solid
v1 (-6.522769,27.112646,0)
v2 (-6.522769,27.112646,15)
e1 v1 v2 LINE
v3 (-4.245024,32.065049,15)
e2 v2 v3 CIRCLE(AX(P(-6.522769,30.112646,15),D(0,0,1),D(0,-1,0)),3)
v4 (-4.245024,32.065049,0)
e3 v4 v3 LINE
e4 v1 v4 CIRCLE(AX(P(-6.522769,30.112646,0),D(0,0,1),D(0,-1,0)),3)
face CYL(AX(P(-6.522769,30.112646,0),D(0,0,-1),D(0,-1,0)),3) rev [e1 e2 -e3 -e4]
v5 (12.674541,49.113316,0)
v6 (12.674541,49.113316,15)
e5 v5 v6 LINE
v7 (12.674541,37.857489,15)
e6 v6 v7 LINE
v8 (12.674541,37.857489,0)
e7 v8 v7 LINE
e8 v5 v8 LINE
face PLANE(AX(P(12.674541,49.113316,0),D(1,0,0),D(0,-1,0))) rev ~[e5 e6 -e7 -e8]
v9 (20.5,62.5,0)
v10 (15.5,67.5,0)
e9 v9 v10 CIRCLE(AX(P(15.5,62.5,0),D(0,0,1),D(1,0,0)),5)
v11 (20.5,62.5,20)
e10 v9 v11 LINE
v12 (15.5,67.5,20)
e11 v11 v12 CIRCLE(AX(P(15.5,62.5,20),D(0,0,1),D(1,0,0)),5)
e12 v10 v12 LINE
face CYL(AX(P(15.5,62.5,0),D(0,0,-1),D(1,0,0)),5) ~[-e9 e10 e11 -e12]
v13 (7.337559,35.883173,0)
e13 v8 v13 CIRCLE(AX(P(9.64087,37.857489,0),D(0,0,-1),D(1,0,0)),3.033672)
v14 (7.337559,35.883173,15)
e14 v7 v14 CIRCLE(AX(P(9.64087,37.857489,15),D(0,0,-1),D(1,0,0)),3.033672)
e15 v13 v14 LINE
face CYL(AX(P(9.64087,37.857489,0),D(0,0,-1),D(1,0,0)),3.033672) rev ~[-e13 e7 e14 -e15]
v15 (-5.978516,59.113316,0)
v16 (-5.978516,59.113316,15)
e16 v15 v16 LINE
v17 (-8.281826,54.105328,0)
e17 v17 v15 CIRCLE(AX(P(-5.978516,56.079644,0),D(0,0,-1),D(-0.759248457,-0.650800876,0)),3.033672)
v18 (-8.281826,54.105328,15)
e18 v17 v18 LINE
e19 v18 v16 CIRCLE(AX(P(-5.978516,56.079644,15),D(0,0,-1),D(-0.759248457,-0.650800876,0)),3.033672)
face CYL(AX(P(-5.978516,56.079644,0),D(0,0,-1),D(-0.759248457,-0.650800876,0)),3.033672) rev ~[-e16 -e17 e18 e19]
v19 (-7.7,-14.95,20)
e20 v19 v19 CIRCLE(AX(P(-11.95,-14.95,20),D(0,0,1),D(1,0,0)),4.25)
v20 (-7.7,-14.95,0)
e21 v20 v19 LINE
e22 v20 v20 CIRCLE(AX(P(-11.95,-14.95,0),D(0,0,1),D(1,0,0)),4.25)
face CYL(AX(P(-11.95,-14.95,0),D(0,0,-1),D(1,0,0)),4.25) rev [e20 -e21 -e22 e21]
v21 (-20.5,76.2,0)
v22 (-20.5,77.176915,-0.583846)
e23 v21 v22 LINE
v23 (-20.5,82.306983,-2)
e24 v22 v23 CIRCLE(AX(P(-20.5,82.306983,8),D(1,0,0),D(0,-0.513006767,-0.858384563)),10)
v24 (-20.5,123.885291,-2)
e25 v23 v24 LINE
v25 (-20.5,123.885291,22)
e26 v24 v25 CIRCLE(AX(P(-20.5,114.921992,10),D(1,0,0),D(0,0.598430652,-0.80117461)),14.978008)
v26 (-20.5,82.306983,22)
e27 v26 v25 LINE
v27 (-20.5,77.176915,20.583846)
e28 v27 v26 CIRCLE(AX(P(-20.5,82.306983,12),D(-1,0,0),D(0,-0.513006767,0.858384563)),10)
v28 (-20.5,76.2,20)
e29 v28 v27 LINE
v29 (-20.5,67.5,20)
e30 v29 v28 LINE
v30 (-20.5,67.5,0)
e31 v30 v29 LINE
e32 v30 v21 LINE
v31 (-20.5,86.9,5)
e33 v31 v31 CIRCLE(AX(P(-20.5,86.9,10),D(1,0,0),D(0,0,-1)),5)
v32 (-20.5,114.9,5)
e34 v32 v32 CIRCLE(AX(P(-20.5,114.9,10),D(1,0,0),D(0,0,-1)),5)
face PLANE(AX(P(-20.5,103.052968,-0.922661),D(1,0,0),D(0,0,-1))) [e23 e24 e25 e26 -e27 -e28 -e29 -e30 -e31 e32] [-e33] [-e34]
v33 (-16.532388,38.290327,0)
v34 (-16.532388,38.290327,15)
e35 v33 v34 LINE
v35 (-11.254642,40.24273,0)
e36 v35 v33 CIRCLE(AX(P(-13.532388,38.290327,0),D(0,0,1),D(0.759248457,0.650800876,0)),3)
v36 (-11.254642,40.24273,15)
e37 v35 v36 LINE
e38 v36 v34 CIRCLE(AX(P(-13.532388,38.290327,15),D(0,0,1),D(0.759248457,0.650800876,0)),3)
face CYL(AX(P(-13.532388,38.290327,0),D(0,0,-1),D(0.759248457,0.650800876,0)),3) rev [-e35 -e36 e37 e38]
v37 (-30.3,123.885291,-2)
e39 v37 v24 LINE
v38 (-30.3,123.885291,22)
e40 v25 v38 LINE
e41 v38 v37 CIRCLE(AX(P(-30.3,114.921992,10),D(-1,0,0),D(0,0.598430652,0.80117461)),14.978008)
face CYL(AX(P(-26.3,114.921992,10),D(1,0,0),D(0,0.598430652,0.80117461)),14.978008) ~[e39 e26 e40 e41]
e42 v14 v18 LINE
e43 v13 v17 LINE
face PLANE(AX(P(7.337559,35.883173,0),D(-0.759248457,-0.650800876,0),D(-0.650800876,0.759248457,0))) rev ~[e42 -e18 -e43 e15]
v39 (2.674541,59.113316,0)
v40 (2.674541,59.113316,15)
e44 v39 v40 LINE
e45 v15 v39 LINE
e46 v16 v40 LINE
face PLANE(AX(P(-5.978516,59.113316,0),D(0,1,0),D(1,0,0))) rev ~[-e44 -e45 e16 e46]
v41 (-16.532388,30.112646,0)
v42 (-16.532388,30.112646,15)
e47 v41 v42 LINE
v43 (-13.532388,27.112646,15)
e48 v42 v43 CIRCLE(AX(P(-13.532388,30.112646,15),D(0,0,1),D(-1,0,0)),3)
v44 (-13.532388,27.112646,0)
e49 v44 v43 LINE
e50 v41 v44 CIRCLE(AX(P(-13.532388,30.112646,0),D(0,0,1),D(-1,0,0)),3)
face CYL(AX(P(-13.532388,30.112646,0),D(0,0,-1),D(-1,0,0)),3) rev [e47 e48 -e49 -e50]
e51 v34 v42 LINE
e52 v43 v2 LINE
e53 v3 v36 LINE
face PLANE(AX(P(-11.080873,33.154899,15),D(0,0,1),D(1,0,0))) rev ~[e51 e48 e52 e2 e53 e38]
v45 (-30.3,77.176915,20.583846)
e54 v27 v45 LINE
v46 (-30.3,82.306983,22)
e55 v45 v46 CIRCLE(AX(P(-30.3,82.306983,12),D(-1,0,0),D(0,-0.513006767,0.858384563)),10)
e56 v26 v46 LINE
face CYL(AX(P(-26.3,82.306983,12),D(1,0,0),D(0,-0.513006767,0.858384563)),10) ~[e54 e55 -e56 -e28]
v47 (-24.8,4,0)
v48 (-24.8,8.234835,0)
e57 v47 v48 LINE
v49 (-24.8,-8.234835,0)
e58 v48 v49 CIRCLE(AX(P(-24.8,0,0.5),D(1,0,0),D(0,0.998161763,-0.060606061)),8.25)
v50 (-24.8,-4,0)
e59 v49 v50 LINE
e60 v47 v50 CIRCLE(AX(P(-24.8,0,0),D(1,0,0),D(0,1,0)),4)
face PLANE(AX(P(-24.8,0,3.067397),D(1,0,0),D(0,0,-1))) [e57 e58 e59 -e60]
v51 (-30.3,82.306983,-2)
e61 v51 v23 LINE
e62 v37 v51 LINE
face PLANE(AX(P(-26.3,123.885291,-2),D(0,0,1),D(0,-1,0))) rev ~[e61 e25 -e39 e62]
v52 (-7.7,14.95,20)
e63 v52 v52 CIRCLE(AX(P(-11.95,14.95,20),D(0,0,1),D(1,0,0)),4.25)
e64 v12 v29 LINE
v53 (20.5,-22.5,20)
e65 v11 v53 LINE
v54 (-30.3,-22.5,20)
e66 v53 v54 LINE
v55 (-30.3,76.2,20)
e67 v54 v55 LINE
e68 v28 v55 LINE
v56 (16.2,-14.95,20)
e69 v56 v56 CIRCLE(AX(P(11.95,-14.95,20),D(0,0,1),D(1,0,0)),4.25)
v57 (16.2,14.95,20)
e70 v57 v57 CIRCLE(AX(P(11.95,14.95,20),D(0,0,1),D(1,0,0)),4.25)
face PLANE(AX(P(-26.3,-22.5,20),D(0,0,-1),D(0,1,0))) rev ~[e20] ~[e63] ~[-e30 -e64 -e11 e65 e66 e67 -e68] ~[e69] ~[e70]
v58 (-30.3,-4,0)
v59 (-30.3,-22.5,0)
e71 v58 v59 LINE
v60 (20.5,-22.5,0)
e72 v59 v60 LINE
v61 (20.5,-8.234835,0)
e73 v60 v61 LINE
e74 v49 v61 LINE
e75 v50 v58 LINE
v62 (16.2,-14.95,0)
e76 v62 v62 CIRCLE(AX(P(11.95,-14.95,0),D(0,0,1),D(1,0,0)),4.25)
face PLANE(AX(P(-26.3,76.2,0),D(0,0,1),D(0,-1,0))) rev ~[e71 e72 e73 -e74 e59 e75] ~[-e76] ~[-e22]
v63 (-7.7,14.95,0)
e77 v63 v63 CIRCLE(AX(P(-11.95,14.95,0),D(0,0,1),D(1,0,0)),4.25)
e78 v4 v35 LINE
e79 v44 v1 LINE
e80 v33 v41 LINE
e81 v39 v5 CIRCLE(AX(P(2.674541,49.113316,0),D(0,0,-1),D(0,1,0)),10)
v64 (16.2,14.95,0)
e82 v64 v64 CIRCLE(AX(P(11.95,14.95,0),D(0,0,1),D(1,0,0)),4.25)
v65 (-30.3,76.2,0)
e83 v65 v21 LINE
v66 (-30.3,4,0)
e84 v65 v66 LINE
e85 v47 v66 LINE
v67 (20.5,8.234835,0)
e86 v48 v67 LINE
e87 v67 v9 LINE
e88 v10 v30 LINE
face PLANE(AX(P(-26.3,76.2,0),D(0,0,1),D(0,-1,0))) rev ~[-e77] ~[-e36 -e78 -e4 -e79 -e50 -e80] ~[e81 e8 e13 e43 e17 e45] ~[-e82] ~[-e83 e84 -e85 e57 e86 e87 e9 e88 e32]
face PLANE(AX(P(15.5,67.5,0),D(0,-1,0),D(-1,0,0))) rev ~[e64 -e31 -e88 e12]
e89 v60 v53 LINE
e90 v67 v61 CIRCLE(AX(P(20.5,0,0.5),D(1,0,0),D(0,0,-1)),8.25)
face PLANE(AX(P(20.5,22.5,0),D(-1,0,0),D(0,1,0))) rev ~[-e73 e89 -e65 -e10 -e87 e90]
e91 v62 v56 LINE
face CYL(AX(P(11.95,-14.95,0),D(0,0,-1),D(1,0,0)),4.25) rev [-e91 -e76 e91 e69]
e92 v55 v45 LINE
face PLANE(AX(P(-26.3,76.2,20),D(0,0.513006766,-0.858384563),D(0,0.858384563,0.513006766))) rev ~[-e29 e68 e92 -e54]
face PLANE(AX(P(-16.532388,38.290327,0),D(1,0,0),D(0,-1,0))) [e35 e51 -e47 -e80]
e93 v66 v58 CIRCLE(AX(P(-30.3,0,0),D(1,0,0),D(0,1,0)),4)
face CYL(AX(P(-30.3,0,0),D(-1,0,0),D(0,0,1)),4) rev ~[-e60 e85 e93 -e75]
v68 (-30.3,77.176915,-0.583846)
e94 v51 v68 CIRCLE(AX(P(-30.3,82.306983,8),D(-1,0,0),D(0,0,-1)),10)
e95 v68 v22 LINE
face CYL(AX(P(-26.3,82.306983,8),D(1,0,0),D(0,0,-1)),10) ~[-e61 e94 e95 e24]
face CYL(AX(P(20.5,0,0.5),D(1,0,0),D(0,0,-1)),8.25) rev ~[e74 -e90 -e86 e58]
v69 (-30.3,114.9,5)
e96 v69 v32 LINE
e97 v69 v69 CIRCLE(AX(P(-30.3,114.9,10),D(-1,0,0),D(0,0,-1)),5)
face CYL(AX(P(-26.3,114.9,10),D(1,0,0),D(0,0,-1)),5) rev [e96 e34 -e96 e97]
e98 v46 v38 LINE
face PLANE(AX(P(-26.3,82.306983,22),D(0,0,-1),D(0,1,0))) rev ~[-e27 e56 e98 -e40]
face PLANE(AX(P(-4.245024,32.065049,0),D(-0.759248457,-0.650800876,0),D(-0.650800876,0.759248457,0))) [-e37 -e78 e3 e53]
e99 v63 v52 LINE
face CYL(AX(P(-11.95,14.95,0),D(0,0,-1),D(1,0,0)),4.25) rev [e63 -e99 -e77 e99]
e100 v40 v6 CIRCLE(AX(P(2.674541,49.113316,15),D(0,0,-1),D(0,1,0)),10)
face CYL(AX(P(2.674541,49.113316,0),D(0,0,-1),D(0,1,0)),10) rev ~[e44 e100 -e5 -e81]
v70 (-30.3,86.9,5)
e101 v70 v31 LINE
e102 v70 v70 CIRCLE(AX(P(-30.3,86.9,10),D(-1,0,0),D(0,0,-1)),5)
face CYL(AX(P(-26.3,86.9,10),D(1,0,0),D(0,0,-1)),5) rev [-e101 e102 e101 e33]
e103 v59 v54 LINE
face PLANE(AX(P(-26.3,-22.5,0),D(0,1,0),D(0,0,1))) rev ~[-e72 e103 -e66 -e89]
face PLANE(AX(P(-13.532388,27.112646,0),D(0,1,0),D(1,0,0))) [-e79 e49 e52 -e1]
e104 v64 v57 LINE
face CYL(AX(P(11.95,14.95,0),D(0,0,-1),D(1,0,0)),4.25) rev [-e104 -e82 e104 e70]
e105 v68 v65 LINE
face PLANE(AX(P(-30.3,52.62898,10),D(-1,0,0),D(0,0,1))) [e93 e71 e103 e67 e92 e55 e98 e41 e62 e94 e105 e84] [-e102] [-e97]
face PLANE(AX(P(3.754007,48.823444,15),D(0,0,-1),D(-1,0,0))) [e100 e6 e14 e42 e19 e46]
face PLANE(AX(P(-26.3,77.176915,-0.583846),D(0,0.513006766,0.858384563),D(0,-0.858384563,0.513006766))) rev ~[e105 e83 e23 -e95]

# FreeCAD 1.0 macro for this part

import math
import FreeCAD as App
import Part
import Sketcher

V = App.Vector

doc = App.newDocument("Part")
params = doc.addObject("Spreadsheet::Sheet", "Params")
for row, (alias, value) in enumerate([
    ("sketch1_diameter", "8.5 mm"),
    ("sketch1_width", "41 mm"),
    ("sketch1_height", "45 mm"),
    ("pad1_length", "20 mm"),
    ("sketch2_width", "9.8 mm"),
    ("sketch2_height", "152.4 mm"),
    ("pad2_length", "20 mm"),
    ("sketch3_diameter", "10 mm"),
    ("sketch3_radius", "10 mm"),
    ("sketch3_width", "53.7 mm"),
    ("pad3_length", "9.8 mm"),
    ("sketch4_diameter", "10 mm"),
    ("pocket1_length", "15 mm"),
    ("sketch5_diameter", "16.5 mm"),
    ("pocket2_length", "65 mm"),
    ("sketch6_radius", "5 mm"),
    ("sketch6_width", "41 mm"),
    ("sketch6_height", "40 mm"),
    ("pad4_length", "20 mm"),
    ("sketch7_width", "4 mm"),
    ("sketch8_radius", "8.25 mm"),
    ("pad5_length", "1.5 mm"),
    ("pocket4_length", "13.5 mm"),
    ("sketch10_diameter", "10 mm"),
    ("sketch10_radius", "10 mm"),
    ("sketch10_height", "20 mm"),
    ("sketch10_width", "98.7 mm"),
    ("pad6_length", "4 mm"),
    ("sketch11_diameter", "8 mm"),
    ("pocket5_length", "10 mm"),
    ("sketch12_radius", "10 mm"),
    ("sketch12_radius2", "3 mm"),
    ("pocket6_length", "15 mm"),
], start=1):
    params.set(f"A{row}", alias)
    params.set(f"B{row}", "=" + value)
    params.setAlias(f"B{row}", alias)

body = doc.addObject("PartDesign::Body", "Body")

# Sketch on XY plane
sketch1 = body.newObject("Sketcher::SketchObject", "Sketch")
sketch1.AttachmentSupport = (doc.getObject("XY_Plane"), [""])
sketch1.MapMode = "FlatFace"
sketch1.addGeometry([
    Part.LineSegment(V(-20.5, 22.5, 0), V(-20.5, -22.5, 0)),  # 0
    Part.LineSegment(V(-20.5, -22.5, 0), V(20.5, -22.5, 0)),  # 1
    Part.LineSegment(V(20.5, -22.5, 0), V(20.5, 22.5, 0)),  # 2
    Part.LineSegment(V(20.5, 22.5, 0), V(-20.5, 22.5, 0)),  # 3
    Part.Circle(V(-11.9, -14.9, 0), V(0, 0, 1), 4.2),  # 4
    Part.Circle(V(11.9, -14.9, 0), V(0, 0, 1), 4.2),  # 5
    Part.Circle(V(-11.9, 14.9, 0), V(0, 0, 1), 4.2),  # 6
    Part.Circle(V(11.9, 14.9, 0), V(0, 0, 1), 4.2),  # 7
], False)
sketch1.addConstraint([
    Sketcher.Constraint("Coincident", 0, 2, 1, 1),
    Sketcher.Constraint("Coincident", 1, 2, 2, 1),
    Sketcher.Constraint("Coincident", 2, 2, 3, 1),
    Sketcher.Constraint("Coincident", 3, 2, 0, 1),
    Sketcher.Constraint("Vertical", 0),
    Sketcher.Constraint("Horizontal", 1),
    Sketcher.Constraint("Vertical", 2),
    Sketcher.Constraint("Horizontal", 3),
    Sketcher.Constraint("Equal", 4, 5),
    Sketcher.Constraint("Equal", 5, 6),
    Sketcher.Constraint("Equal", 6, 7),
    Sketcher.Constraint("Symmetric", 5, 3, 6, 3, -1, 1),
    Sketcher.Constraint("Symmetric", 4, 3, 7, 3, -1, 1),
    Sketcher.Constraint("Symmetric", 0, 2, 2, 2, -1, 1),
    Sketcher.Constraint("Symmetric", 4, 3, 5, 3, -2),
    Sketcher.Constraint("Diameter", 4, 8.5),
    Sketcher.Constraint("DistanceX", 1, 1, 1, 2, 41.0),
    Sketcher.Constraint("DistanceY", 0, 2, 0, 1, 45.0),
    Sketcher.Constraint("DistanceX", 4, 3, 5, 3, 23.9),
    Sketcher.Constraint("DistanceY", 4, 3, 6, 3, 29.9),
])
sketch1.setExpression("Constraints[15]", "Params.sketch1_diameter")
sketch1.setExpression("Constraints[16]", "Params.sketch1_width")
sketch1.setExpression("Constraints[17]", "Params.sketch1_height")
pad1 = body.newObject("PartDesign::Pad", "Pad")
pad1.Profile = sketch1
pad1.setExpression("Length", "Params.pad1_length")

# Sketch on XY plane
sketch2 = body.newObject("Sketcher::SketchObject", "Sketch001")
sketch2.AttachmentSupport = (doc.getObject("XY_Plane"), [""])
sketch2.MapMode = "FlatFace"
sketch2.addGeometry([
    Part.LineSegment(V(-20, 130, 0), V(-20, -22, 0)),
    Part.LineSegment(V(-20, -22, 0), V(-30, -22, 0)),
    Part.LineSegment(V(-30, -22, 0), V(-30, 130, 0)),
    Part.LineSegment(V(-30, 130, 0), V(-20, 130, 0)),
], False)
sketch2.addConstraint([
    Sketcher.Constraint("Coincident", 0, 2, 1, 1),
    Sketcher.Constraint("Coincident", 1, 2, 2, 1),
    Sketcher.Constraint("Coincident", 2, 2, 3, 1),
    Sketcher.Constraint("Coincident", 3, 2, 0, 1),
    Sketcher.Constraint("Vertical", 0),
    Sketcher.Constraint("Horizontal", 1),
    Sketcher.Constraint("Vertical", 2),
    Sketcher.Constraint("Horizontal", 3),
    Sketcher.Constraint("DistanceX", 1, 2, 1, 1, 9.8),
    Sketcher.Constraint("DistanceY", 0, 2, 0, 1, 152.4),
    Sketcher.Constraint("DistanceX", 0, 2, -1, 1, 20.5),
    Sketcher.Constraint("DistanceY", 0, 2, -1, 1, 22.5),
])
sketch2.setExpression("Constraints[8]", "Params.sketch2_width")
sketch2.setExpression("Constraints[9]", "Params.sketch2_height")
pad2 = body.newObject("PartDesign::Pad", "Pad001")
pad2.Profile = sketch2
pad2.setExpression("Length", "Params.pad2_length")

# Sketch on YZ plane
sketch3 = body.newObject("Sketcher::SketchObject", "Sketch002")
sketch3.AttachmentSupport = (doc.getObject("YZ_Plane"), [""])
sketch3.MapMode = "FlatFace"
sketch3.AttachmentOffset = App.Placement(V(0, 0, -20.5), App.Rotation())
sketch3.addGeometry([
    Part.Circle(V(114.9, 10, 0), V(0, 0, 1), 5),  # 0
    Part.Circle(V(86.9, 10, 0), V(0, 0, 1), 5),  # 1
    Part.LineSegment(V(76.2, 0, 0), V(77.18, -0.58, 0)),  # 2
    Part.ArcOfCircle(Part.Circle(V(82.31, 8, 0), V(0, 0, 1), 10), math.radians(-121), math.radians(-90)),  # 3
    Part.LineSegment(V(82.31, -2, 0), V(123.89, -2, 0)),  # 4
    Part.ArcOfCircle(Part.Circle(V(123.89, 8, 0), V(0, 0, 1), 10), math.radians(-90), math.radians(-55)),  # 5
    Part.LineSegment(V(129.55, -0.24, 0), V(129.9, 0, 0)),  # 6
    Part.LineSegment(V(129.9, 0, 0), V(76.2, 0, 0)),  # 7
    Part.LineSegment(V(77.18, 20.58, 0), V(76.2, 20, 0)),  # 8
    Part.LineSegment(V(76.2, 20, 0), V(129.9, 20, 0)),  # 9
    Part.LineSegment(V(129.9, 20, 0), V(129.55, 20.24, 0)),  # 10
    Part.ArcOfCircle(Part.Circle(V(123.89, 12, 0), V(0, 0, 1), 10), math.radians(55), math.radians(90)),  # 11
    Part.LineSegment(V(123.89, 22, 0), V(82.31, 22, 0)),  # 12
    Part.ArcOfCircle(Part.Circle(V(82.31, 12, 0), V(0, 0, 1), 10), math.radians(90), math.radians(121)),  # 13
], False)
sketch3.addConstraint([
    Sketcher.Constraint("Tangent", 2, 2, 3, 1),
    Sketcher.Constraint("Tangent", 3, 2, 4, 1),
    Sketcher.Constraint("Tangent", 4, 2, 5, 1),
    Sketcher.Constraint("Tangent", 5, 2, 6, 1),
    Sketcher.Constraint("Coincident", 6, 2, 7, 1),
    Sketcher.Constraint("Coincident", 7, 2, 2, 1),
    Sketcher.Constraint("Coincident", 8, 2, 9, 1),
    Sketcher.Constraint("Coincident", 9, 2, 10, 1),
    Sketcher.Constraint("Tangent", 10, 2, 11, 1),
    Sketcher.Constraint("Tangent", 11, 2, 12, 1),
    Sketcher.Constraint("Tangent", 12, 2, 13, 1),
    Sketcher.Constraint("Tangent", 13, 2, 8, 1),
    Sketcher.Constraint("Horizontal", 4),
    Sketcher.Constraint("Horizontal", 7),
    Sketcher.Constraint("Horizontal", 9),
    Sketcher.Constraint("Horizontal", 12),
    Sketcher.Constraint("Equal", 0, 1),
    Sketcher.Constraint("Equal", 3, 5),
    Sketcher.Constraint("Equal", 5, 11),
    Sketcher.Constraint("Equal", 11, 13),
    Sketcher.Constraint("PointOnObject", 6, 2, -1),
    Sketcher.Constraint("Horizontal", 0, 3, 1, 3),
    Sketcher.Constraint("Vertical", 5, 3, 11, 3),
    Sketcher.Constraint("Vertical", 3, 3, 13, 3),
    Sketcher.Constraint("Vertical", 7, 2, 8, 2),
    Sketcher.Constraint("Vertical", 6, 2, 9, 2),
    Sketcher.Constraint("Vertical", 5, 2, 10, 2),
    Sketcher.Constraint("Diameter", 0, 10.0),
    Sketcher.Constraint("Radius", 3, 10.0),
    Sketcher.Constraint("DistanceX", 7, 2, 7, 1, 53.7),
    Sketcher.Constraint("DistanceY", -1, 1, 0, 3, 10.0),
    Sketcher.Constraint("DistanceY", -1, 1, 3, 3, 8.0),
    Sketcher.Constraint("DistanceY", -1, 1, 11, 3, 12.0),
    Sketcher.Constraint("DistanceX", 1, 3, 0, 3, 28.0),
    Sketcher.Constraint("DistanceX", 0, 3, 6, 2, 15.0),
    Sketcher.Constraint("DistanceX", -1, 1, 0, 3, 114.9),
    Sketcher.Constraint("DistanceX", 4, 1, 4, 2, 41.578308),
    Sketcher.Constraint("DistanceX", -1, 1, 5, 3, 123.885291),
])
sketch3.setExpression("Constraints[27]", "Params.sketch3_diameter")
sketch3.setExpression("Constraints[28]", "Params.sketch3_radius")
sketch3.setExpression("Constraints[29]", "Params.sketch3_width")
pad3 = body.newObject("PartDesign::Pad", "Pad002")
pad3.Profile = sketch3
pad3.setExpression("Length", "Params.pad3_length")
pad3.Reversed = True

# Sketch on YZ plane
sketch4 = body.newObject("Sketcher::SketchObject", "Sketch003")
sketch4.AttachmentSupport = (doc.getObject("YZ_Plane"), [""])
sketch4.MapMode = "FlatFace"
sketch4.AttachmentOffset = App.Placement(V(0, 0, -20.5), App.Rotation())
sketch4.addGeometry([
    Part.Circle(V(87, 10, 0), V(0, 0, 1), 5),
    Part.Circle(V(115, 10, 0), V(0, 0, 1), 5),
], False)
sketch4.addConstraint([
    Sketcher.Constraint("Equal", 0, 1),
    Sketcher.Constraint("Horizontal", 0, 3, 1, 3),
    Sketcher.Constraint("Diameter", 0, 10.0),
    Sketcher.Constraint("DistanceY", -1, 1, 0, 3, 10.0),
    Sketcher.Constraint("DistanceX", 0, 3, 1, 3, 28.0),
    Sketcher.Constraint("DistanceX", -1, 1, 0, 3, 86.9),
])
sketch4.setExpression("Constraints[2]", "Params.sketch4_diameter")
pocket1 = body.newObject("PartDesign::Pocket", "Pocket")
pocket1.Profile = sketch4
pocket1.setExpression("Length", "Params.pocket1_length")

# Sketch on YZ plane
sketch5 = body.newObject("Sketcher::SketchObject", "Sketch004")
sketch5.AttachmentSupport = (doc.getObject("YZ_Plane"), [""])
sketch5.MapMode = "FlatFace"
sketch5.AttachmentOffset = App.Placement(V(0, 0, 20.5), App.Rotation())
sketch5.addGeometry(Part.Circle(V(0, 0, 0), V(0, 0, 1), 8), False)
sketch5.addConstraint([
    Sketcher.Constraint("PointOnObject", 0, 3, -2),
    Sketcher.Constraint("Diameter", 0, 16.5),
    Sketcher.Constraint("DistanceY", -1, 1, 0, 3, 0.5),
])
sketch5.setExpression("Constraints[1]", "Params.sketch5_diameter")
pocket2 = body.newObject("PartDesign::Pocket", "Pocket001")
pocket2.Profile = sketch5
pocket2.setExpression("Length", "Params.pocket2_length")

# Sketch on XY plane
sketch6 = body.newObject("Sketcher::SketchObject", "Sketch005")
sketch6.AttachmentSupport = (doc.getObject("XY_Plane"), [""])
sketch6.MapMode = "FlatFace"
sketch6.addGeometry([
    Part.LineSegment(V(20, 62, 0), V(20, 22, 0)),  # 0
    Part.LineSegment(V(20, 22, 0), V(-20, 22, 0)),  # 1
    Part.LineSegment(V(-20, 22, 0), V(-20, 68, 0)),  # 2
    Part.LineSegment(V(-20, 68, 0), V(16, 68, 0)),  # 3
    Part.ArcOfCircle(Part.Circle(V(16, 62, 0), V(0, 0, 1), 5), math.radians(0), math.radians(90)),  # 4
], False)
sketch6.addConstraint([
    Sketcher.Constraint("Coincident", 0, 2, 1, 1),
    Sketcher.Constraint("Coincident", 1, 2, 2, 1),
    Sketcher.Constraint("Coincident", 2, 2, 3, 1),
    Sketcher.Constraint("Tangent", 3, 2, 4, 2),
    Sketcher.Constraint("Tangent", 4, 1, 0, 1),
    Sketcher.Constraint("Vertical", 0),
    Sketcher.Constraint("Horizontal", 1),
    Sketcher.Constraint("Vertical", 2),
    Sketcher.Constraint("Horizontal", 3),
    Sketcher.Constraint("Radius", 4, 5.0),
    Sketcher.Constraint("DistanceX", 1, 2, 1, 1, 41.0),
    Sketcher.Constraint("DistanceY", 0, 2, 0, 1, 40.0),
    Sketcher.Constraint("DistanceX", -1, 1, 4, 3, 15.5),
    Sketcher.Constraint("DistanceY", -1, 1, 4, 3, 62.5),
])
sketch6.setExpression("Constraints[9]", "Params.sketch6_radius")
sketch6.setExpression("Constraints[10]", "Params.sketch6_width")
sketch6.setExpression("Constraints[11]", "Params.sketch6_height")
pad4 = body.newObject("PartDesign::Pad", "Pad003")
pad4.Profile = sketch6
pad4.setExpression("Length", "Params.pad4_length")

# Sketch on XY plane
sketch7 = body.newObject("Sketcher::SketchObject", "Sketch006")
sketch7.AttachmentSupport = (doc.getObject("XY_Plane"), [""])
sketch7.MapMode = "FlatFace"
sketch7.addGeometry([
    Part.LineSegment(V(-30.3, -22.5, 0), V(-26.3, -22.5, 0)),  # 0
    Part.LineSegment(V(-26.3, -22.5, 0), V(-26.3, 157.6, 0)),  # 1
    Part.LineSegment(V(-26.3, 157.6, 0), V(-61.1, 162.5, 0)),  # 2
    Part.LineSegment(V(-61.1, 162.5, 0), V(-64.5, 37.6, 0)),  # 3
    Part.LineSegment(V(-64.5, 37.6, 0), V(-30.3, -22.5, 0)),  # 4
], False)
sketch7.addConstraint([
    Sketcher.Constraint("Coincident", 0, 2, 1, 1),
    Sketcher.Constraint("Coincident", 1, 2, 2, 1),
    Sketcher.Constraint("Coincident", 2, 2, 3, 1),
    Sketcher.Constraint("Coincident", 3, 2, 4, 1),
    Sketcher.Constraint("Coincident", 4, 2, 0, 1),
    Sketcher.Constraint("Horizontal", 0),
    Sketcher.Constraint("Vertical", 1),
    Sketcher.Constraint("DistanceX", 0, 1, 0, 2, 4.0),
    Sketcher.Constraint("DistanceX", 0, 2, -1, 1, 26.3),
    Sketcher.Constraint("DistanceY", 0, 2, -1, 1, 22.5),
    Sketcher.Constraint("Distance", 2, 35.123442),
    Sketcher.Constraint("Distance", 3, 124.986292),
    Sketcher.Constraint("Distance", 4, 69.14744),
    Sketcher.Constraint("DistanceY", 1, 1, 1, 2, 180.093856),
    Sketcher.Constraint("DistanceX", 2, 2, -1, 1, 61.075791),
])
sketch7.setExpression("Constraints[7]", "Params.sketch7_width")
pocket3 = body.newObject("PartDesign::Pocket", "Pocket002")
pocket3.Profile = sketch7
pocket3.Type = "ThroughAll"
pocket3.Midplane = True

# Sketch on YZ plane
sketch8 = body.newObject("Sketcher::SketchObject", "Sketch007")
sketch8.AttachmentSupport = (doc.getObject("YZ_Plane"), [""])
sketch8.MapMode = "FlatFace"
sketch8.AttachmentOffset = App.Placement(V(0, 0, -24.8), App.Rotation())
sketch8.addGeometry([
    Part.LineSegment(V(8, 0, 0), V(-8, 0, 0)),
    Part.ArcOfCircle(Part.Circle(V(0, 0, 0), V(0, 0, 1), 8), math.radians(-3), math.radians(183)),
], False)
sketch8.addConstraint([
    Sketcher.Constraint("Coincident", 0, 1, 1, 1),
    Sketcher.Constraint("Coincident", 1, 2, 0, 2),
    Sketcher.Constraint("Horizontal", 0),
    Sketcher.Constraint("Symmetric", 0, 1, 1, 2, -1, 1),
    Sketcher.Constraint("Radius", 1, 8.25),
    Sketcher.Constraint("DistanceY", -1, 1, 1, 3, 0.5),
])
sketch8.setExpression("Constraints[4]", "Params.sketch8_radius")
pad5 = body.newObject("PartDesign::Pad", "Pad004")
pad5.Profile = sketch8
pad5.setExpression("Length", "Params.pad5_length")
pad5.Reversed = True

# Sketch on YZ plane
sketch9 = body.newObject("Sketcher::SketchObject", "Sketch008")
sketch9.AttachmentSupport = (doc.getObject("YZ_Plane"), [""])
sketch9.MapMode = "FlatFace"
sketch9.AttachmentOffset = App.Placement(V(0, 0, -20.5), App.Rotation())
sketch9.addGeometry([
    Part.LineSegment(V(124, 31, 0), V(124, 22, 0)),  # 0
    Part.ArcOfCircle(Part.Circle(V(115, 10, 0), V(0, 0, 1), 15), math.radians(-53), math.radians(53)),  # 1
    Part.LineSegment(V(124, -2, 0), V(125, -9, 0)),  # 2
    Part.LineSegment(V(125, -9, 0), V(135, 2, 0)),  # 3
    Part.LineSegment(V(135, 2, 0), V(137, 25, 0)),  # 4
    Part.LineSegment(V(137, 25, 0), V(124, 31, 0)),  # 5
], False)
sketch9.addConstraint([
    Sketcher.Constraint("Coincident", 0, 2, 1, 2),
    Sketcher.Constraint("Coincident", 1, 1, 2, 1),
    Sketcher.Constraint("Coincident", 2, 2, 3, 1),
    Sketcher.Constraint("Coincident", 3, 2, 4, 1),
    Sketcher.Constraint("Coincident", 4, 2, 5, 1),
    Sketcher.Constraint("Coincident", 5, 2, 0, 1),
    Sketcher.Constraint("Vertical", 0),
    Sketcher.Constraint("Vertical", 0, 2, 1, 1),
    Sketcher.Constraint("DistanceY", -1, 1, 1, 3, 10.0),
    Sketcher.Constraint("DistanceY", -1, 1, 0, 2, 22.0),
    Sketcher.Constraint("Radius", 1, 14.978008),
    Sketcher.Constraint("Distance", 5, 14.154561),
    Sketcher.Constraint("DistanceY", 0, 2, 0, 1, 8.820305),
    Sketcher.Constraint("DistanceX", -1, 1, 1, 3, 114.921992),
    Sketcher.Constraint("DistanceY", 2, 2, -1, 1, 8.997051),
    Sketcher.Constraint("DistanceX", 2, 2, 3, 2, 9.648482),
    Sketcher.Constraint("DistanceX", 0, 2, 4, 2, 12.933442),
    Sketcher.Constraint("DistanceY", 3, 2, 4, 2, 22.589448),
    Sketcher.Constraint("Distance", 2, 7.131642),
])
pocket4 = body.newObject("PartDesign::Pocket", "Pocket003")
pocket4.Profile = sketch9
pocket4.setExpression("Length", "Params.pocket4_length")

# Sketch on YZ plane
sketch10 = body.newObject("Sketcher::SketchObject", "Sketch009")
sketch10.AttachmentSupport = (doc.getObject("YZ_Plane"), [""])
sketch10.MapMode = "FlatFace"
sketch10.AttachmentOffset = App.Placement(V(0, 0, -26.3), App.Rotation())
sketch10.addGeometry([
    Part.LineSegment(V(-22.5, 0, 0), V(-22.5, 20, 0)),  # 0
    Part.LineSegment(V(-22.5, 20, 0), V(76.2, 20, 0)),  # 1
    Part.LineSegment(V(76.2, 20, 0), V(77.2, 20.6, 0)),  # 2
    Part.ArcOfCircle(Part.Circle(V(82.3, 12, 0), V(0, 0, 1), 10), math.radians(90), math.radians(121)),  # 3
    Part.LineSegment(V(82.3, 22, 0), V(123.9, 22, 0)),  # 4
    Part.ArcOfCircle(Part.Circle(V(114.9, 10, 0), V(0, 0, 1), 15), math.radians(-53), math.radians(53)),  # 5
    Part.LineSegment(V(123.9, -2, 0), V(82.3, -2, 0)),  # 6
    Part.ArcOfCircle(Part.Circle(V(82.3, 8, 0), V(0, 0, 1), 10), math.radians(-121), math.radians(-90)),  # 7
    Part.LineSegment(V(77.2, -0.6, 0), V(76.2, 0, 0)),  # 8
    Part.LineSegment(V(76.2, 0, 0), V(-22.5, 0, 0)),  # 9
    Part.Circle(V(86.9, 10, 0), V(0, 0, 1), 5),  # 10
    Part.Circle(V(114.9, 10, 0), V(0, 0, 1), 5),  # 11
], False)
sketch10.addConstraint([
    Sketcher.Constraint("Coincident", 0, 2, 1, 1),
    Sketcher.Constraint("Coincident", 1, 2, 2, 1),
    Sketcher.Constraint("Tangent", 2, 2, 3, 2),
    Sketcher.Constraint("Tangent", 3, 1, 4, 1),
    Sketcher.Constraint("Coincident", 4, 2, 5, 2),
    Sketcher.Constraint("Coincident", 5, 1, 6, 1),
    Sketcher.Constraint("Tangent", 6, 2, 7, 2),
    Sketcher.Constraint("Tangent", 7, 1, 8, 1),
    Sketcher.Constraint("Coincident", 8, 2, 9, 1),
    Sketcher.Constraint("Coincident", 9, 2, 0, 1),
    Sketcher.Constraint("Vertical", 0),
    Sketcher.Constraint("Horizontal", 1),
    Sketcher.Constraint("Horizontal", 4),
    Sketcher.Constraint("Horizontal", 6),
    Sketcher.Constraint("Horizontal", 9),
    Sketcher.Constraint("Equal", 3, 7),
    Sketcher.Constraint("Equal", 10, 11),
    Sketcher.Constraint("PointOnObject", 8, 2, -1),
    Sketcher.Constraint("Horizontal", 5, 3, 10, 3),
    Sketcher.Constraint("Horizontal", 10, 3, 11, 3),
    Sketcher.Constraint("Vertical", 3, 3, 7, 3),
    Sketcher.Constraint("Vertical", 4, 2, 5, 1),
    Sketcher.Constraint("Vertical", 2, 2, 7, 1),
    Sketcher.Constraint("Vertical", 1, 2, 8, 2),
    Sketcher.Constraint("Diameter", 10, 10.0),
    Sketcher.Constraint("Radius", 3, 10.0),
    Sketcher.Constraint("DistanceY", 0, 1, 0, 2, 20.0),
    Sketcher.Constraint("DistanceX", 1, 1, 1, 2, 98.7),
    Sketcher.Constraint("DistanceY", -1, 1, 3, 3, 12.0),
    Sketcher.Constraint("DistanceX", 10, 3, 11, 3, 28.0),
    Sketcher.Constraint("DistanceX", -1, 1, 10, 3, 86.9),
    Sketcher.Constraint("DistanceX", 0, 2, -1, 1, 22.5),
    Sketcher.Constraint("Radius", 5, 14.978008),
    Sketcher.Constraint("DistanceX", 4, 1, 4, 2, 41.578308),
    Sketcher.Constraint("DistanceX", -1, 1, 5, 3, 114.921992),
])
sketch10.setExpression("Constraints[24]", "Params.sketch10_diameter")
sketch10.setExpression("Constraints[25]", "Params.sketch10_radius")
sketch10.setExpression("Constraints[26]", "Params.sketch10_height")
sketch10.setExpression("Constraints[27]", "Params.sketch10_width")
pad6 = body.newObject("PartDesign::Pad", "Pad005")
pad6.Profile = sketch10
pad6.setExpression("Length", "Params.pad6_length")
pad6.Reversed = True

# Sketch on YZ plane
sketch11 = body.newObject("Sketcher::SketchObject", "Sketch010")
sketch11.AttachmentSupport = (doc.getObject("YZ_Plane"), [""])
sketch11.MapMode = "FlatFace"
sketch11.AttachmentOffset = App.Placement(V(0, 0, -30.3), App.Rotation())
sketch11.addGeometry(Part.Circle(V(0, 0, 0), V(0, 0, 1), 4), False)
sketch11.addConstraint([
    Sketcher.Constraint("Coincident", 0, 3, -1, 1),
    Sketcher.Constraint("Diameter", 0, 8.0),
])
sketch11.setExpression("Constraints[1]", "Params.sketch11_diameter")
pocket5 = body.newObject("PartDesign::Pocket", "Pocket004")
pocket5.Profile = sketch11
pocket5.setExpression("Length", "Params.pocket5_length")
pocket5.Reversed = True

# Sketch on XY plane
sketch12 = body.newObject("Sketcher::SketchObject", "Sketch011")
sketch12.AttachmentSupport = (doc.getObject("XY_Plane"), [""])
sketch12.MapMode = "FlatFace"
sketch12.addGeometry([
    Part.LineSegment(V(7.3, 35.9, 0), V(-8.3, 54.1, 0)),  # 0
    Part.ArcOfCircle(Part.Circle(V(-6, 56.1, 0), V(0, 0, 1), 3), math.radians(90), math.radians(221)),  # 1
    Part.LineSegment(V(-6, 59.1, 0), V(2.7, 59.1, 0)),  # 2
    Part.ArcOfCircle(Part.Circle(V(2.7, 49.1, 0), V(0, 0, 1), 10), math.radians(0), math.radians(90)),  # 3
    Part.LineSegment(V(12.7, 49.1, 0), V(12.7, 37.9, 0)),  # 4
    Part.ArcOfCircle(Part.Circle(V(9.6, 37.9, 0), V(0, 0, 1), 3), math.radians(-139), math.radians(0)),  # 5
    Part.LineSegment(V(-11.3, 40.2, 0), V(-4.2, 32.1, 0)),  # 6
    Part.ArcOfCircle(Part.Circle(V(-6.5, 30.1, 0), V(0, 0, 1), 3), math.radians(-90), math.radians(41)),  # 7
    Part.LineSegment(V(-6.5, 27.1, 0), V(-13.5, 27.1, 0)),  # 8
    Part.ArcOfCircle(Part.Circle(V(-13.5, 30.1, 0), V(0, 0, 1), 3), math.radians(180), math.radians(270)),  # 9
    Part.LineSegment(V(-16.5, 30.1, 0), V(-16.5, 38.3, 0)),  # 10
    Part.ArcOfCircle(Part.Circle(V(-13.5, 38.3, 0), V(0, 0, 1), 3), math.radians(41), math.radians(180)),  # 11
], False)
sketch12.addConstraint([
    Sketcher.Constraint("Tangent", 0, 2, 1, 2),
    Sketcher.Constraint("Tangent", 1, 1, 2, 1),
    Sketcher.Constraint("Tangent", 2, 2, 3, 2),
    Sketcher.Constraint("Tangent", 3, 1, 4, 1),
    Sketcher.Constraint("Tangent", 4, 2, 5, 2),
    Sketcher.Constraint("Tangent", 5, 1, 0, 1),
    Sketcher.Constraint("Tangent", 6, 2, 7, 2),
    Sketcher.Constraint("Tangent", 7, 1, 8, 1),
    Sketcher.Constraint("Tangent", 8, 2, 9, 2),
    Sketcher.Constraint("Tangent", 9, 1, 10, 1),
    Sketcher.Constraint("Tangent", 10, 2, 11, 2),
    Sketcher.Constraint("Tangent", 11, 1, 6, 1),
    Sketcher.Constraint("Horizontal", 2),
    Sketcher.Constraint("Vertical", 4),
    Sketcher.Constraint("Horizontal", 8),
    Sketcher.Constraint("Vertical", 10),
    Sketcher.Constraint("Equal", 1, 5),
    Sketcher.Constraint("Equal", 7, 9),
    Sketcher.Constraint("Equal", 9, 11),
    Sketcher.Constraint("Parallel", 0, 6),
    Sketcher.Constraint("Radius", 3, 10.0),
    Sketcher.Constraint("Radius", 7, 3.0),
    Sketcher.Constraint("Radius", 1, 3.033672),
    Sketcher.Constraint("DistanceY", 7, 3, 1, 3, 25.966998),
    Sketcher.Constraint("DistanceY", 11, 3, 0, 2, 15.815001),
    Sketcher.Constraint("DistanceX", 8, 2, 8, 1, 7.009618),
    Sketcher.Constraint("DistanceX", 2, 1, 2, 2, 8.653057),
    Sketcher.Constraint("DistanceX", -1, 1, 3, 3, 2.674541),
    Sketcher.Constraint("DistanceY", -1, 1, 5, 3, 37.857489),
    Sketcher.Constraint("DistanceX", 7, 3, -1, 1, 6.522769),
])
sketch12.setExpression("Constraints[20]", "Params.sketch12_radius")
sketch12.setExpression("Constraints[21]", "Params.sketch12_radius2")
pocket6 = body.newObject("PartDesign::Pocket", "Pocket005")
pocket6.Profile = sketch12
pocket6.setExpression("Length", "Params.pocket6_length")
pocket6.Reversed = True

doc.recompute()
